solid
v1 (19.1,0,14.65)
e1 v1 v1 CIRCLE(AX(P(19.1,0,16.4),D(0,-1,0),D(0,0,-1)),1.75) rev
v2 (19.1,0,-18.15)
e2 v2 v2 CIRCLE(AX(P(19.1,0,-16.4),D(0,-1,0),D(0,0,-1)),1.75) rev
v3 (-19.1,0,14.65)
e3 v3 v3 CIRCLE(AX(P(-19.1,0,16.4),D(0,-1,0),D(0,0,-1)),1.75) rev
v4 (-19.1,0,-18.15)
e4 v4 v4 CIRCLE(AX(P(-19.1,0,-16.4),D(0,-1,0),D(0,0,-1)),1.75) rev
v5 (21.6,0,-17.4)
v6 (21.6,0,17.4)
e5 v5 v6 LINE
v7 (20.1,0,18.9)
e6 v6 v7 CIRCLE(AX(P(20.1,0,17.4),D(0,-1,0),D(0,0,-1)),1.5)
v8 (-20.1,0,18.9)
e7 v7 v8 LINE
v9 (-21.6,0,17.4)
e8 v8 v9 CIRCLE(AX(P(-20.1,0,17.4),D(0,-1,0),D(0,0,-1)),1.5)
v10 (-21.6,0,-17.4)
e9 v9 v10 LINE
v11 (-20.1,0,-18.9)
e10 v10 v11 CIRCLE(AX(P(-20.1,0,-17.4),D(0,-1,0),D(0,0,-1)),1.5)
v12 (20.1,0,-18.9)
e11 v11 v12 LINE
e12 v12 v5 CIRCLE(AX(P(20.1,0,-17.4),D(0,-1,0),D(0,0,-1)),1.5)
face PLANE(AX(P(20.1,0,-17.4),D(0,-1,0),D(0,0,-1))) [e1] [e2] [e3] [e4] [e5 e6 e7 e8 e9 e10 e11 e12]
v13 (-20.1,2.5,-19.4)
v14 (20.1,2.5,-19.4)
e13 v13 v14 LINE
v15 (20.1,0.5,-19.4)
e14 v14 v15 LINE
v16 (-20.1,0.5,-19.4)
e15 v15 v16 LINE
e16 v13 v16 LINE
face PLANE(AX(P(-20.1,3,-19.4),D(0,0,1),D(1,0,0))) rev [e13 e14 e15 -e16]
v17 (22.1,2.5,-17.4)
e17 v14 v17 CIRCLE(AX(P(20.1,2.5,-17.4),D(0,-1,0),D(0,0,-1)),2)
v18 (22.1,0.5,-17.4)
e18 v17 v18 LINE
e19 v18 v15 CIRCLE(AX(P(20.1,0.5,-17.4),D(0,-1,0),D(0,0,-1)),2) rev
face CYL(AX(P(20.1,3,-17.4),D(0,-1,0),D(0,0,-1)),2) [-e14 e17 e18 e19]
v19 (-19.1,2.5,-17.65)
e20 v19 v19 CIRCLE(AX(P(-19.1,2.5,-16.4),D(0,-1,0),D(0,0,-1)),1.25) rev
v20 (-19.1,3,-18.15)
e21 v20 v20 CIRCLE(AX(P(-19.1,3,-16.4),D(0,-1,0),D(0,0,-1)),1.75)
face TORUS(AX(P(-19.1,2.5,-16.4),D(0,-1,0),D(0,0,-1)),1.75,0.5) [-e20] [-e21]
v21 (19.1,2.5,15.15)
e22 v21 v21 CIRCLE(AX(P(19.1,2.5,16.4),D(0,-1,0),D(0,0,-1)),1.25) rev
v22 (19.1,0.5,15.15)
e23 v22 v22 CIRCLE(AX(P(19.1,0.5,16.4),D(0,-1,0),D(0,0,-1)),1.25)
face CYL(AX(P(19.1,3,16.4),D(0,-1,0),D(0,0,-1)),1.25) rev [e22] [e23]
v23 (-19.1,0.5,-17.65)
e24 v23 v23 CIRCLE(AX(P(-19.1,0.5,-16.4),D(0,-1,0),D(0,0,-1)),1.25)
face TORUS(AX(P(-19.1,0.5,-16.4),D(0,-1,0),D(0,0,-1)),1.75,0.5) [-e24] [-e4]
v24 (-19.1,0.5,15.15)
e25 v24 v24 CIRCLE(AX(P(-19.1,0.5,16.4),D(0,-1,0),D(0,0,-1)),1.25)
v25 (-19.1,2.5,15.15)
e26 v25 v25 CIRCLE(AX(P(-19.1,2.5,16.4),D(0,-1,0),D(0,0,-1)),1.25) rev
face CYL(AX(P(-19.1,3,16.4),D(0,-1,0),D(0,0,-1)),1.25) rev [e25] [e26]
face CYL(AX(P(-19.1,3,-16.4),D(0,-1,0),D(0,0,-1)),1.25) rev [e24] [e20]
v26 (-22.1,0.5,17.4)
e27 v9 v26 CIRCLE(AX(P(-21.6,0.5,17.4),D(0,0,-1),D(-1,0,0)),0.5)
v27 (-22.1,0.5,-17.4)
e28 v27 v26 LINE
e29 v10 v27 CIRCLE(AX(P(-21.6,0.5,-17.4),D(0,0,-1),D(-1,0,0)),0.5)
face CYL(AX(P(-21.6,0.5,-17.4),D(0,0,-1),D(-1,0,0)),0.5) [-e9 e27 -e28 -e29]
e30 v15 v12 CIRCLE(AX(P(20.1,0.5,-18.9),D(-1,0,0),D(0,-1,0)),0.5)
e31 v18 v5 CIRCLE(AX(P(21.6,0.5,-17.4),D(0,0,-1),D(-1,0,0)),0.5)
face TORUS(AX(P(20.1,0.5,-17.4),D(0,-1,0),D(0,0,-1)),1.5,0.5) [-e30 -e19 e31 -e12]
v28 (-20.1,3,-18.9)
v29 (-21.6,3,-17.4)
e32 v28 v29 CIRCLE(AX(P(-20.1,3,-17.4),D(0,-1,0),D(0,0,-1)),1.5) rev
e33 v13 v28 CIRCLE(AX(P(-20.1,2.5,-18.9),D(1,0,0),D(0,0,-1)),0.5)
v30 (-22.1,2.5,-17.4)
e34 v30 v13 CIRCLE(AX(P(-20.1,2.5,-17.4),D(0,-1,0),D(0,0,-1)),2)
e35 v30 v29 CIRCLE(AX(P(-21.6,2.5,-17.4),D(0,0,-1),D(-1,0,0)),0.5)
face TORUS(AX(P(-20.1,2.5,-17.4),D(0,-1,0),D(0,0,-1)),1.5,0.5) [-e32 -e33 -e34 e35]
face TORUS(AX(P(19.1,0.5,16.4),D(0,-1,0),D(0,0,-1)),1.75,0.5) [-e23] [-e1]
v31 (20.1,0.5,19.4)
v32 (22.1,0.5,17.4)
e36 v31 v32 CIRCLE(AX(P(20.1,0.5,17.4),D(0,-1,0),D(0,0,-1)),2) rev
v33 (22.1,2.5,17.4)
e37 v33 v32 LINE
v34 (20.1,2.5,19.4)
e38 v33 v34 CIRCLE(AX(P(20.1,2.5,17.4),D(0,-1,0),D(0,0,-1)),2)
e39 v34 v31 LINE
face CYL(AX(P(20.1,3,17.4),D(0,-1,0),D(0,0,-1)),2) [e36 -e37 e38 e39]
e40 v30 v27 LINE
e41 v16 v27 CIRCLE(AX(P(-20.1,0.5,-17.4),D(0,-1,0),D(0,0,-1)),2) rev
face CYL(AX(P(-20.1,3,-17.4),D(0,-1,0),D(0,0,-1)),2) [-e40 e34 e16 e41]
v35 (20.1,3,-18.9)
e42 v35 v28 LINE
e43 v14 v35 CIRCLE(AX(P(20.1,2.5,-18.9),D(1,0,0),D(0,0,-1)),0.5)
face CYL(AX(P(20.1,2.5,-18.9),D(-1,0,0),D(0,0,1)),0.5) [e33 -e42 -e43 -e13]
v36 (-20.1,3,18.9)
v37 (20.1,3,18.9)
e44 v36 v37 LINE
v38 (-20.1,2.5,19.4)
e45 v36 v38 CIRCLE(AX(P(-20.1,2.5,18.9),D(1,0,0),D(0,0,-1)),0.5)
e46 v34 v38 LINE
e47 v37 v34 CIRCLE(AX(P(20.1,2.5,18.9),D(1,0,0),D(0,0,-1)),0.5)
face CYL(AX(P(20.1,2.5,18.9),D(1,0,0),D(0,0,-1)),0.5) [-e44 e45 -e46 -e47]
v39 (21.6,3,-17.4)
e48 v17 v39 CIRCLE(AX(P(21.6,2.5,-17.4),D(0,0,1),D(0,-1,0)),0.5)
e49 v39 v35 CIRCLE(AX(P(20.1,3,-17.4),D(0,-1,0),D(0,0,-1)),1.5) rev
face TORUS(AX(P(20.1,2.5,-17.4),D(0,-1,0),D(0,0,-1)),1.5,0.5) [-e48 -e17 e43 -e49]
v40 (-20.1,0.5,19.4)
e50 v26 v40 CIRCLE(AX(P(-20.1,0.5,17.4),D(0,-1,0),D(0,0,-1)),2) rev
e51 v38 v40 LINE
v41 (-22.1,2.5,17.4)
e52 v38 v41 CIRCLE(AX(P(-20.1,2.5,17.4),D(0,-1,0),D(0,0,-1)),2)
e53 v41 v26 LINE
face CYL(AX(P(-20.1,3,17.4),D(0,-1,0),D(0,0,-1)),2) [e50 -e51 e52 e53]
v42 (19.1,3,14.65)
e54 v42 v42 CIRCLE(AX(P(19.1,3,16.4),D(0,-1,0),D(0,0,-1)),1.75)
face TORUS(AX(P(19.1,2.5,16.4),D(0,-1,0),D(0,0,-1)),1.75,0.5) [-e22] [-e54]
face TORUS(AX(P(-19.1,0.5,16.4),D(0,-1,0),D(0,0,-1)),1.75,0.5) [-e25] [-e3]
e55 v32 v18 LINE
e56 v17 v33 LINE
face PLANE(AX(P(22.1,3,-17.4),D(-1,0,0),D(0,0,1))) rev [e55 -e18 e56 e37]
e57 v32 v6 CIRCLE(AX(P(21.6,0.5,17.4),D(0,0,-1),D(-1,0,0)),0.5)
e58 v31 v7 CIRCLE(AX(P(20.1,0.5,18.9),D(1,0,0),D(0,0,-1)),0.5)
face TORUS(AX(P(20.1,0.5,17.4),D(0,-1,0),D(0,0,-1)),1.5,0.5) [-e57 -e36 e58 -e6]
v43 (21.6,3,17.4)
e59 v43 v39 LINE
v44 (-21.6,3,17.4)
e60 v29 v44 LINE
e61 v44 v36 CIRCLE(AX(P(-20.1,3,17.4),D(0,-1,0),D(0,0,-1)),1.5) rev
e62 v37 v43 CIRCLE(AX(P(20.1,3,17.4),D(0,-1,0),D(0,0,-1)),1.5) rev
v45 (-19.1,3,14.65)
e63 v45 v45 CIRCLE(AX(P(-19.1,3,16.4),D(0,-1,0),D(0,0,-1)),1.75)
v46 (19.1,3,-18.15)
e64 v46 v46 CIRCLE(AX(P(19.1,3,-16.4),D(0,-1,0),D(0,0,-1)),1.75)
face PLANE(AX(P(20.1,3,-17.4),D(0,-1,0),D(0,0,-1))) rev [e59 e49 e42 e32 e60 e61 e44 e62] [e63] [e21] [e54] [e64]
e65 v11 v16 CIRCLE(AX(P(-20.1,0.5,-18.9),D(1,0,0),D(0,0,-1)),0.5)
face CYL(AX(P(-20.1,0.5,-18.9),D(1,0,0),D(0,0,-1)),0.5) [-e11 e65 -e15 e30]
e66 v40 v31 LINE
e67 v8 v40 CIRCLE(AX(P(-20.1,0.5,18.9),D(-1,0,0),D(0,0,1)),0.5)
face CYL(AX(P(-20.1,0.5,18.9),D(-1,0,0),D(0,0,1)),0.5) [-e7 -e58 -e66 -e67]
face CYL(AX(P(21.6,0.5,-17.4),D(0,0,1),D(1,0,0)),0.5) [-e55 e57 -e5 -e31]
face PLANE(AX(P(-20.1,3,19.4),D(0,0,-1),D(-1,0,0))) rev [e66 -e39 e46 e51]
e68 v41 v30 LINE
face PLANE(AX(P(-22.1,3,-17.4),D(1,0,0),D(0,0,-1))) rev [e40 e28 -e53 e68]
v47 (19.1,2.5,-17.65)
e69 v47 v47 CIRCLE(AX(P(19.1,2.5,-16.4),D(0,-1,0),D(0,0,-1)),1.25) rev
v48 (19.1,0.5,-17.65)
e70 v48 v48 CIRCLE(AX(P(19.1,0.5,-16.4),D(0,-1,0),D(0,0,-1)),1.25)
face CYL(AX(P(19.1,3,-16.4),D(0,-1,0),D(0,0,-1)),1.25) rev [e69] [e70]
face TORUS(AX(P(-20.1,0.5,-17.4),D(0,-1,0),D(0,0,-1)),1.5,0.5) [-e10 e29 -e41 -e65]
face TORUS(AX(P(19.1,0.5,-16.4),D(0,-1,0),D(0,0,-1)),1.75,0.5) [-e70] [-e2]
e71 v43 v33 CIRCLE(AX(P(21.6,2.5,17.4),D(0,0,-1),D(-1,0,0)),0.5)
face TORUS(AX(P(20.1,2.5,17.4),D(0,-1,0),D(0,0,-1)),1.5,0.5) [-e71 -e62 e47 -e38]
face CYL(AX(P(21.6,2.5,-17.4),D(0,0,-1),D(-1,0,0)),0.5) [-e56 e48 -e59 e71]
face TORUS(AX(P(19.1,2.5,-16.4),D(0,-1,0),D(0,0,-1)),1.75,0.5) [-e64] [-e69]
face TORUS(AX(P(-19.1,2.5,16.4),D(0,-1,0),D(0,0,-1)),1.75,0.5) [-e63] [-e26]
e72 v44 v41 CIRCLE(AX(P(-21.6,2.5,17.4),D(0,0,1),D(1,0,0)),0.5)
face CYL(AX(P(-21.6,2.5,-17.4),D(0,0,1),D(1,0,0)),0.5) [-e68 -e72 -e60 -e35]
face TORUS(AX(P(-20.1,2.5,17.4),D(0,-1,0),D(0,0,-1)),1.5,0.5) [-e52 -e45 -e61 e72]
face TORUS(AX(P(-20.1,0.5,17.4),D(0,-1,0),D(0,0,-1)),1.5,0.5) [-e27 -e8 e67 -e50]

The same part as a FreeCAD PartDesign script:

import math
import FreeCAD as App
import Part
import Sketcher
from FreeCAD import Vector


def edges_at(feature, points):
    """Names of the edges that pass closest to the given points."""
    edges = feature.Shape.Edges
    near = lambda p: min(range(len(edges)), key=lambda i: edges[i].distToShape(Part.Vertex(*p))[0])
    return sorted({f"Edge{near(p) + 1}" for p in points})

doc = App.newDocument("Part")
body = doc.addObject("PartDesign::Body", "Body")

# Sketch on XZ plane
sketch1 = doc.addObject("Sketcher::SketchObject", "Sketch")
body.addObject(sketch1)
sketch1.AttachmentSupport = (doc.XZ_Plane, [""])
sketch1.MapMode = "FlatFace"
sketch1.addGeometry(Part.LineSegment(Vector(20.1, -19.4, 0), Vector(-20.1, -19.4, 0)), False)
sketch1.addGeometry(Part.ArcOfCircle(Part.Circle(Vector(-20.1, -17.4, 0), Vector(0, 0, 1), 2), math.radians(-180), math.radians(-90)), False)
sketch1.addGeometry(Part.LineSegment(Vector(-22.1, -17.4, 0), Vector(-22.1, 17.4, 0)), False)
sketch1.addGeometry(Part.ArcOfCircle(Part.Circle(Vector(-20.1, 17.4, 0), Vector(0, 0, 1), 2), math.radians(90), math.radians(180)), False)
sketch1.addGeometry(Part.LineSegment(Vector(-20.1, 19.4, 0), Vector(20.1, 19.4, 0)), False)
sketch1.addGeometry(Part.ArcOfCircle(Part.Circle(Vector(20.1, 17.4, 0), Vector(0, 0, 1), 2), math.radians(0), math.radians(90)), False)
sketch1.addGeometry(Part.LineSegment(Vector(22.1, 17.4, 0), Vector(22.1, -17.4, 0)), False)
sketch1.addGeometry(Part.ArcOfCircle(Part.Circle(Vector(20.1, -17.4, 0), Vector(0, 0, 1), 2), math.radians(-90), math.radians(0)), False)
sketch1.addGeometry(Part.Circle(Vector(19.1, 16.4, 0), Vector(0, 0, 1), 1.2), False)
sketch1.addGeometry(Part.Circle(Vector(-19.1, 16.4, 0), Vector(0, 0, 1), 1.2), False)
sketch1.addGeometry(Part.Circle(Vector(19.1, -16.4, 0), Vector(0, 0, 1), 1.2), False)
sketch1.addGeometry(Part.Circle(Vector(-19.1, -16.4, 0), Vector(0, 0, 1), 1.2), False)
sketch1.addConstraint(Sketcher.Constraint("Tangent", 0, 2, 1, 2))
sketch1.addConstraint(Sketcher.Constraint("Tangent", 1, 1, 2, 1))
sketch1.addConstraint(Sketcher.Constraint("Tangent", 2, 2, 3, 2))
sketch1.addConstraint(Sketcher.Constraint("Tangent", 3, 1, 4, 1))
sketch1.addConstraint(Sketcher.Constraint("Tangent", 4, 2, 5, 2))
sketch1.addConstraint(Sketcher.Constraint("Tangent", 5, 1, 6, 1))
sketch1.addConstraint(Sketcher.Constraint("Tangent", 6, 2, 7, 2))
sketch1.addConstraint(Sketcher.Constraint("Tangent", 7, 1, 0, 1))
sketch1.addConstraint(Sketcher.Constraint("Horizontal", 0))
sketch1.addConstraint(Sketcher.Constraint("Vertical", 2))
sketch1.addConstraint(Sketcher.Constraint("Horizontal", 4))
sketch1.addConstraint(Sketcher.Constraint("Vertical", 6))
sketch1.addConstraint(Sketcher.Constraint("Equal", 1, 3))
sketch1.addConstraint(Sketcher.Constraint("Equal", 3, 5))
sketch1.addConstraint(Sketcher.Constraint("Equal", 5, 7))
sketch1.addConstraint(Sketcher.Constraint("Equal", 8, 9))
sketch1.addConstraint(Sketcher.Constraint("Equal", 9, 10))
sketch1.addConstraint(Sketcher.Constraint("Equal", 10, 11))
sketch1.addConstraint(Sketcher.Constraint("Symmetric", 1, 3, 5, 3, -1, 1))
sketch1.addConstraint(Sketcher.Constraint("Symmetric", 9, 3, 10, 3, -1, 1))
sketch1.addConstraint(Sketcher.Constraint("Symmetric", 8, 3, 11, 3, -1, 1))
sketch1.addConstraint(Sketcher.Constraint("Symmetric", 8, 3, 9, 3, -2))
sketch1.addConstraint(Sketcher.Constraint("Radius", 1, 2.0))
sketch1.addConstraint(Sketcher.Constraint("Diameter", 8, 2.5))
sketch1.addConstraint(Sketcher.Constraint("DistanceX", 0, 2, 0, 1, 40.2))
sketch1.addConstraint(Sketcher.Constraint("DistanceY", 2, 1, 2, 2, 34.8))
sketch1.addConstraint(Sketcher.Constraint("DistanceX", 8, 3, 5, 3, 1.0))
sketch1.addConstraint(Sketcher.Constraint("DistanceY", 8, 3, 5, 3, 1.0))
pad1 = doc.addObject("PartDesign::Pad", "Pad")
body.addObject(pad1)
pad1.Profile = sketch1
pad1.Length = 3
pad1.Reversed = True
doc.recompute()

fillet = doc.addObject("PartDesign::Fillet", "Fillet")
body.addObject(fillet)
fillet.Base = (pad1, edges_at(pad1, [
    (-22.1, 0, 0),
    (-21.514, 0, -18.814),
    (0, 0, -19.4),
    (21.514, 0, -18.814),
    (-21.514, 3, -18.814),
    (-22.1, 3, 0),
    (-21.514, 3, 18.814),
    (-19.1, 0, -17.65),
    (-19.1, 3, -17.65),
    (0, 3, 19.4),
    (19.1, 0, -15.15),
    (19.1, 3, -15.15),
    (21.514, 3, 18.814),
    (19.1, 0, 15.15),
    (19.1, 3, 15.15),
    (22.1, 3, 0),
    (-19.1, 0, 17.65),
    (-19.1, 3, 17.65),
    (21.514, 3, -18.814),
    (22.1, 0, 0),
    (0, 3, -19.4),
    (21.514, 0, 18.814),
    (0, 0, 19.4),
    (-21.514, 0, 18.814),
]))
fillet.Radius = 0.5

doc.recompute()
